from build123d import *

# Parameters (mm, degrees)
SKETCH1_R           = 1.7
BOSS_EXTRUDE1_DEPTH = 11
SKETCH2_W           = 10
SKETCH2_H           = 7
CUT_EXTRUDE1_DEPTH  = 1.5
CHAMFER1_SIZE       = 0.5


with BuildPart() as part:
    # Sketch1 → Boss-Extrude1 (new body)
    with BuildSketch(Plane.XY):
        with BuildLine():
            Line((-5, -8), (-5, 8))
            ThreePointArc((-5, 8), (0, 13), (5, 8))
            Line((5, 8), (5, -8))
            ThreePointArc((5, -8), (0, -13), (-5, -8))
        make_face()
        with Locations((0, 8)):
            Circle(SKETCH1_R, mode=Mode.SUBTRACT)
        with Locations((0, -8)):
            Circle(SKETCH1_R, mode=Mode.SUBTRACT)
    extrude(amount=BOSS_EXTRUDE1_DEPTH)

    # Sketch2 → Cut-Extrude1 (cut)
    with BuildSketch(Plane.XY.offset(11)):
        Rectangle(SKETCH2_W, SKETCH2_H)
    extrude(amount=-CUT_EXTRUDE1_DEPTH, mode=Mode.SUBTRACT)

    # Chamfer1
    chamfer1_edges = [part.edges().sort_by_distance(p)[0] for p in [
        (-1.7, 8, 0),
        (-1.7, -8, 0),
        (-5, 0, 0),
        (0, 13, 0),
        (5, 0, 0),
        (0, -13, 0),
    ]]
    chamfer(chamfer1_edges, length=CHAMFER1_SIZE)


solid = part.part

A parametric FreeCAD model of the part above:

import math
import FreeCAD as App
import Part
import Sketcher


def edges_at(feature, points):
    """Names of the edges that pass closest to the given points."""
    edges = feature.Shape.Edges
    near = lambda p: min(range(len(edges)), key=lambda i: edges[i].distToShape(Part.Vertex(*p))[0])
    return sorted({f"Edge{near(p) + 1}" for p in points})

doc = App.newDocument("Part")
body = doc.addObject("PartDesign::Body", "Body")

# Sketch on XY plane
sketch1 = body.newObject("Sketcher::SketchObject", "Sketch")
sketch1.AttachmentSupport = (doc.getObject("XY_Plane"), [""])
sketch1.MapMode = "FlatFace"
sketch1.addGeometry([
    Part.LineSegment(App.Vector(-5, 8, 0), App.Vector(-5, -8, 0)),  # 0
    Part.ArcOfCircle(Part.Circle(App.Vector(0, -8, 0), App.Vector(0, 0, 1), 5), math.radians(180), math.radians(360)),  # 1
    Part.LineSegment(App.Vector(5, -8, 0), App.Vector(5, 8, 0)),  # 2
    Part.ArcOfCircle(Part.Circle(App.Vector(0, 8, 0), App.Vector(0, 0, 1), 5), math.radians(0), math.radians(180)),  # 3
    Part.Circle(App.Vector(0, -8, 0), App.Vector(0, 0, 1), 1.7),  # 4
    Part.Circle(App.Vector(0, 8, 0), App.Vector(0, 0, 1), 1.7),  # 5
], False)
sketch1.addConstraint([
    Sketcher.Constraint("Tangent", 0, 2, 1, 1),
    Sketcher.Constraint("Tangent", 1, 2, 2, 1),
    Sketcher.Constraint("Tangent", 2, 2, 3, 1),
    Sketcher.Constraint("Tangent", 3, 2, 0, 1),
    Sketcher.Constraint("Vertical", 0),
    Sketcher.Constraint("Vertical", 2),
    Sketcher.Constraint("Coincident", 4, 3, 1, 3),
    Sketcher.Constraint("Coincident", 5, 3, 3, 3),
    Sketcher.Constraint("Equal", 4, 5),
    Sketcher.Constraint("Symmetric", 1, 3, 3, 3, -1, 1),
    Sketcher.Constraint("Radius", 1, 5.0),
    Sketcher.Constraint("Diameter", 4, 3.4),
    Sketcher.Constraint("DistanceY", 0, 2, 0, 1, 16.0),
])
pad1 = body.newObject("PartDesign::Pad", "Pad")
pad1.Profile = sketch1
pad1.Length = 11

# Sketch on XY plane
sketch2 = body.newObject("Sketcher::SketchObject", "Sketch001")
sketch2.AttachmentSupport = (doc.getObject("XY_Plane"), [""])
sketch2.MapMode = "FlatFace"
sketch2.AttachmentOffset = App.Placement(App.Vector(0, 0, 11), App.Rotation())
sketch2.addGeometry([
    Part.LineSegment(App.Vector(-5, 3.5, 0), App.Vector(-5, -3.5, 0)),
    Part.LineSegment(App.Vector(-5, -3.5, 0), App.Vector(5, -3.5, 0)),
    Part.LineSegment(App.Vector(5, -3.5, 0), App.Vector(5, 3.5, 0)),
    Part.LineSegment(App.Vector(5, 3.5, 0), App.Vector(-5, 3.5, 0)),
], False)
sketch2.addConstraint([
    Sketcher.Constraint("Coincident", 0, 2, 1, 1),
    Sketcher.Constraint("Coincident", 1, 2, 2, 1),
    Sketcher.Constraint("Coincident", 2, 2, 3, 1),
    Sketcher.Constraint("Coincident", 3, 2, 0, 1),
    Sketcher.Constraint("Vertical", 0),
    Sketcher.Constraint("Horizontal", 1),
    Sketcher.Constraint("Vertical", 2),
    Sketcher.Constraint("Horizontal", 3),
    Sketcher.Constraint("Symmetric", 0, 2, 2, 2, -1, 1),
    Sketcher.Constraint("DistanceX", 1, 1, 1, 2, 10.0),
    Sketcher.Constraint("DistanceY", 0, 2, 0, 1, 7.0),
])
pocket1 = body.newObject("PartDesign::Pocket", "Pocket")
pocket1.Profile = sketch2
pocket1.Length = 1.5
doc.recompute()

chamfer = body.newObject("PartDesign::Chamfer", "Chamfer")
chamfer.Base = (pocket1, edges_at(pocket1, [
    (-1.7, 8, 0),
    (-1.7, -8, 0),
    (-5, 0, 0),
    (0, 13, 0),
    (5, 0, 0),
    (0, -13, 0),
]))
chamfer.Size = 0.5

doc.recompute()
